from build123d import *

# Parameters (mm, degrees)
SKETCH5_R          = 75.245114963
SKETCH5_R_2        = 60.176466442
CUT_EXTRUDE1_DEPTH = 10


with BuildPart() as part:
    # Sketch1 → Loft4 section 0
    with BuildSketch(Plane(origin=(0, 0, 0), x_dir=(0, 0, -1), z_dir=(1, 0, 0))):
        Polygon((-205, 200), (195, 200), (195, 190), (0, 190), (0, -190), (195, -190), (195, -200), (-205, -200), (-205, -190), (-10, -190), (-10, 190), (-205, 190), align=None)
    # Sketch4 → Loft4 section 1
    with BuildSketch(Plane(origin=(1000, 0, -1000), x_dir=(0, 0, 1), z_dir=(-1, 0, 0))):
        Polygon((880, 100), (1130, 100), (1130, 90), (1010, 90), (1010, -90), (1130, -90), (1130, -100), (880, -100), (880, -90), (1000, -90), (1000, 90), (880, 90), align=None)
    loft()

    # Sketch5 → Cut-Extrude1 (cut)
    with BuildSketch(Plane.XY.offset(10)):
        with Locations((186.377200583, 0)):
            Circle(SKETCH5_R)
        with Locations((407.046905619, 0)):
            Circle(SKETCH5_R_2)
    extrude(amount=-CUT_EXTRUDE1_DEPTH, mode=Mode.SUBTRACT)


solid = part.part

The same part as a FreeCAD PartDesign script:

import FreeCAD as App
import Part
import Sketcher
Q = App.Units.Quantity


def add_polygon(sketch, points):
    """Adds a closed chain of lines whose ends are joined by coincident constraints."""
    first, n = sketch.GeometryCount, len(points)
    for a, b in zip(points, points[1:] + points[:1]):
        sketch.addGeometry(Part.LineSegment(App.Vector(*a, 0), App.Vector(*b, 0)), False)
    for i in range(n):
        sketch.addConstraint(Sketcher.Constraint("Coincident", first + i, 2, first + (i + 1) % n, 1))

doc = App.newDocument("Part")
body = doc.addObject("PartDesign::Body", "Body")

sketch1 = body.newObject("Sketcher::SketchObject", "Sketch")
sketch1.AttachmentSupport = (doc.getObject("YZ_Plane"), [""])
sketch1.MapMode = "FlatFace"
add_polygon(sketch1, [(200, -195), (200, 205), (190, 205), (190, 10), (-190, 10), (-190, 205), (-200, 205), (-200, -195), (-190, -195), (-190, 0), (190, 0), (190, -195)])
sketch1.addConstraint(Sketcher.Constraint("Vertical", 0))
sketch1.addConstraint(Sketcher.Constraint("Horizontal", 1))
sketch1.addConstraint(Sketcher.Constraint("Vertical", 2))
sketch1.addConstraint(Sketcher.Constraint("Horizontal", 3))
sketch1.addConstraint(Sketcher.Constraint("Vertical", 4))
sketch1.addConstraint(Sketcher.Constraint("Horizontal", 5))
sketch1.addConstraint(Sketcher.Constraint("Vertical", 6))
sketch1.addConstraint(Sketcher.Constraint("Horizontal", 7))
sketch1.addConstraint(Sketcher.Constraint("Vertical", 8))
sketch1.addConstraint(Sketcher.Constraint("Horizontal", 9))
sketch1.addConstraint(Sketcher.Constraint("Vertical", 10))
sketch1.addConstraint(Sketcher.Constraint("Horizontal", 11))
sketch1.addConstraint(Sketcher.Constraint("Symmetric", 8, 2, 9, 2, -1, 1))
sketch1.addConstraint(Sketcher.Constraint("Symmetric", 1, 2, 4, 2, -2))
sketch1.addConstraint(Sketcher.Constraint("Symmetric", 6, 2, 11, 2, -2))
sketch1.addConstraint(Sketcher.Constraint("Vertical", 4, 2, 7, 2))
sketch1.addConstraint(Sketcher.Constraint("Equal", 4, 8))
sketch1.addConstraint(Sketcher.Constraint("DistanceX", 1, 2, 1, 1, Q("10 mm")))
sketch1.addConstraint(Sketcher.Constraint("DistanceX", 3, 2, 3, 1, Q("380 mm")))
sketch1.addConstraint(Sketcher.Constraint("DistanceY", 0, 1, 0, 2, Q("400 mm")))
sketch1.addConstraint(Sketcher.Constraint("DistanceY", 2, 2, 2, 1, Q("195 mm")))

sketch2 = body.newObject("Sketcher::SketchObject", "Sketch001")
sketch2.AttachmentSupport = (doc.getObject("YZ_Plane"), [""])
sketch2.MapMode = "FlatFace"
sketch2.AttachmentOffset = App.Placement(App.Vector(0, 0, 1000), App.Rotation())
add_polygon(sketch2, [(100, 130), (100, -120), (90, -120), (90, 0), (-90, 0), (-90, -120), (-100, -120), (-100, 130), (-90, 130), (-90, 10), (90, 10), (90, 130)])
sketch2.addConstraint(Sketcher.Constraint("Vertical", 0))
sketch2.addConstraint(Sketcher.Constraint("Horizontal", 1))
sketch2.addConstraint(Sketcher.Constraint("Vertical", 2))
sketch2.addConstraint(Sketcher.Constraint("Horizontal", 3))
sketch2.addConstraint(Sketcher.Constraint("Vertical", 4))
sketch2.addConstraint(Sketcher.Constraint("Horizontal", 5))
sketch2.addConstraint(Sketcher.Constraint("Vertical", 6))
sketch2.addConstraint(Sketcher.Constraint("Horizontal", 7))
sketch2.addConstraint(Sketcher.Constraint("Vertical", 8))
sketch2.addConstraint(Sketcher.Constraint("Horizontal", 9))
sketch2.addConstraint(Sketcher.Constraint("Vertical", 10))
sketch2.addConstraint(Sketcher.Constraint("Horizontal", 11))
sketch2.addConstraint(Sketcher.Constraint("Symmetric", 2, 2, 3, 2, -1, 1))
sketch2.addConstraint(Sketcher.Constraint("Symmetric", 0, 2, 5, 2, -2))
sketch2.addConstraint(Sketcher.Constraint("Symmetric", 7, 2, 10, 2, -2))
sketch2.addConstraint(Sketcher.Constraint("Vertical", 4, 2, 7, 2))
sketch2.addConstraint(Sketcher.Constraint("Equal", 4, 8))
sketch2.addConstraint(Sketcher.Constraint("DistanceX", 1, 2, 1, 1, Q("10 mm")))
sketch2.addConstraint(Sketcher.Constraint("DistanceX", 3, 2, 3, 1, Q("180 mm")))
sketch2.addConstraint(Sketcher.Constraint("DistanceY", 0, 2, 0, 1, Q("250 mm")))
sketch2.addConstraint(Sketcher.Constraint("DistanceY", 2, 1, 2, 2, Q("120 mm")))

additiveloft = body.newObject("PartDesign::AdditiveLoft", "AdditiveLoft")
additiveloft.Profile = sketch1
additiveloft.Sections = [sketch2]

sketch3 = body.newObject("Sketcher::SketchObject", "Sketch002")
sketch3.AttachmentSupport = (doc.getObject("XY_Plane"), [""])
sketch3.MapMode = "FlatFace"
sketch3.AttachmentOffset = App.Placement(App.Vector(0, 0, 10), App.Rotation())
sketch3.addGeometry(Part.Circle(App.Vector(186.377201, 0, 0), App.Vector(0, 0, 1), 75.245115), False)
sketch3.addGeometry(Part.Circle(App.Vector(407.046906, 0, 0), App.Vector(0, 0, 1), 60.176466), False)
sketch3.addConstraint(Sketcher.Constraint("PointOnObject", 0, 3, -1))
sketch3.addConstraint(Sketcher.Constraint("PointOnObject", 1, 3, -1))
sketch3.addConstraint(Sketcher.Constraint("Diameter", 0, Q("150.49023 mm")))
sketch3.addConstraint(Sketcher.Constraint("Diameter", 1, Q("120.352933 mm")))
sketch3.addConstraint(Sketcher.Constraint("DistanceX", -1, 1, 0, 3, Q("186.377201 mm")))
sketch3.addConstraint(Sketcher.Constraint("DistanceX", -1, 1, 1, 3, Q("407.046906 mm")))
pocket1 = body.newObject("PartDesign::Pocket", "Pocket")
pocket1.Profile = sketch3
pocket1.Length = 10

doc.recompute()
